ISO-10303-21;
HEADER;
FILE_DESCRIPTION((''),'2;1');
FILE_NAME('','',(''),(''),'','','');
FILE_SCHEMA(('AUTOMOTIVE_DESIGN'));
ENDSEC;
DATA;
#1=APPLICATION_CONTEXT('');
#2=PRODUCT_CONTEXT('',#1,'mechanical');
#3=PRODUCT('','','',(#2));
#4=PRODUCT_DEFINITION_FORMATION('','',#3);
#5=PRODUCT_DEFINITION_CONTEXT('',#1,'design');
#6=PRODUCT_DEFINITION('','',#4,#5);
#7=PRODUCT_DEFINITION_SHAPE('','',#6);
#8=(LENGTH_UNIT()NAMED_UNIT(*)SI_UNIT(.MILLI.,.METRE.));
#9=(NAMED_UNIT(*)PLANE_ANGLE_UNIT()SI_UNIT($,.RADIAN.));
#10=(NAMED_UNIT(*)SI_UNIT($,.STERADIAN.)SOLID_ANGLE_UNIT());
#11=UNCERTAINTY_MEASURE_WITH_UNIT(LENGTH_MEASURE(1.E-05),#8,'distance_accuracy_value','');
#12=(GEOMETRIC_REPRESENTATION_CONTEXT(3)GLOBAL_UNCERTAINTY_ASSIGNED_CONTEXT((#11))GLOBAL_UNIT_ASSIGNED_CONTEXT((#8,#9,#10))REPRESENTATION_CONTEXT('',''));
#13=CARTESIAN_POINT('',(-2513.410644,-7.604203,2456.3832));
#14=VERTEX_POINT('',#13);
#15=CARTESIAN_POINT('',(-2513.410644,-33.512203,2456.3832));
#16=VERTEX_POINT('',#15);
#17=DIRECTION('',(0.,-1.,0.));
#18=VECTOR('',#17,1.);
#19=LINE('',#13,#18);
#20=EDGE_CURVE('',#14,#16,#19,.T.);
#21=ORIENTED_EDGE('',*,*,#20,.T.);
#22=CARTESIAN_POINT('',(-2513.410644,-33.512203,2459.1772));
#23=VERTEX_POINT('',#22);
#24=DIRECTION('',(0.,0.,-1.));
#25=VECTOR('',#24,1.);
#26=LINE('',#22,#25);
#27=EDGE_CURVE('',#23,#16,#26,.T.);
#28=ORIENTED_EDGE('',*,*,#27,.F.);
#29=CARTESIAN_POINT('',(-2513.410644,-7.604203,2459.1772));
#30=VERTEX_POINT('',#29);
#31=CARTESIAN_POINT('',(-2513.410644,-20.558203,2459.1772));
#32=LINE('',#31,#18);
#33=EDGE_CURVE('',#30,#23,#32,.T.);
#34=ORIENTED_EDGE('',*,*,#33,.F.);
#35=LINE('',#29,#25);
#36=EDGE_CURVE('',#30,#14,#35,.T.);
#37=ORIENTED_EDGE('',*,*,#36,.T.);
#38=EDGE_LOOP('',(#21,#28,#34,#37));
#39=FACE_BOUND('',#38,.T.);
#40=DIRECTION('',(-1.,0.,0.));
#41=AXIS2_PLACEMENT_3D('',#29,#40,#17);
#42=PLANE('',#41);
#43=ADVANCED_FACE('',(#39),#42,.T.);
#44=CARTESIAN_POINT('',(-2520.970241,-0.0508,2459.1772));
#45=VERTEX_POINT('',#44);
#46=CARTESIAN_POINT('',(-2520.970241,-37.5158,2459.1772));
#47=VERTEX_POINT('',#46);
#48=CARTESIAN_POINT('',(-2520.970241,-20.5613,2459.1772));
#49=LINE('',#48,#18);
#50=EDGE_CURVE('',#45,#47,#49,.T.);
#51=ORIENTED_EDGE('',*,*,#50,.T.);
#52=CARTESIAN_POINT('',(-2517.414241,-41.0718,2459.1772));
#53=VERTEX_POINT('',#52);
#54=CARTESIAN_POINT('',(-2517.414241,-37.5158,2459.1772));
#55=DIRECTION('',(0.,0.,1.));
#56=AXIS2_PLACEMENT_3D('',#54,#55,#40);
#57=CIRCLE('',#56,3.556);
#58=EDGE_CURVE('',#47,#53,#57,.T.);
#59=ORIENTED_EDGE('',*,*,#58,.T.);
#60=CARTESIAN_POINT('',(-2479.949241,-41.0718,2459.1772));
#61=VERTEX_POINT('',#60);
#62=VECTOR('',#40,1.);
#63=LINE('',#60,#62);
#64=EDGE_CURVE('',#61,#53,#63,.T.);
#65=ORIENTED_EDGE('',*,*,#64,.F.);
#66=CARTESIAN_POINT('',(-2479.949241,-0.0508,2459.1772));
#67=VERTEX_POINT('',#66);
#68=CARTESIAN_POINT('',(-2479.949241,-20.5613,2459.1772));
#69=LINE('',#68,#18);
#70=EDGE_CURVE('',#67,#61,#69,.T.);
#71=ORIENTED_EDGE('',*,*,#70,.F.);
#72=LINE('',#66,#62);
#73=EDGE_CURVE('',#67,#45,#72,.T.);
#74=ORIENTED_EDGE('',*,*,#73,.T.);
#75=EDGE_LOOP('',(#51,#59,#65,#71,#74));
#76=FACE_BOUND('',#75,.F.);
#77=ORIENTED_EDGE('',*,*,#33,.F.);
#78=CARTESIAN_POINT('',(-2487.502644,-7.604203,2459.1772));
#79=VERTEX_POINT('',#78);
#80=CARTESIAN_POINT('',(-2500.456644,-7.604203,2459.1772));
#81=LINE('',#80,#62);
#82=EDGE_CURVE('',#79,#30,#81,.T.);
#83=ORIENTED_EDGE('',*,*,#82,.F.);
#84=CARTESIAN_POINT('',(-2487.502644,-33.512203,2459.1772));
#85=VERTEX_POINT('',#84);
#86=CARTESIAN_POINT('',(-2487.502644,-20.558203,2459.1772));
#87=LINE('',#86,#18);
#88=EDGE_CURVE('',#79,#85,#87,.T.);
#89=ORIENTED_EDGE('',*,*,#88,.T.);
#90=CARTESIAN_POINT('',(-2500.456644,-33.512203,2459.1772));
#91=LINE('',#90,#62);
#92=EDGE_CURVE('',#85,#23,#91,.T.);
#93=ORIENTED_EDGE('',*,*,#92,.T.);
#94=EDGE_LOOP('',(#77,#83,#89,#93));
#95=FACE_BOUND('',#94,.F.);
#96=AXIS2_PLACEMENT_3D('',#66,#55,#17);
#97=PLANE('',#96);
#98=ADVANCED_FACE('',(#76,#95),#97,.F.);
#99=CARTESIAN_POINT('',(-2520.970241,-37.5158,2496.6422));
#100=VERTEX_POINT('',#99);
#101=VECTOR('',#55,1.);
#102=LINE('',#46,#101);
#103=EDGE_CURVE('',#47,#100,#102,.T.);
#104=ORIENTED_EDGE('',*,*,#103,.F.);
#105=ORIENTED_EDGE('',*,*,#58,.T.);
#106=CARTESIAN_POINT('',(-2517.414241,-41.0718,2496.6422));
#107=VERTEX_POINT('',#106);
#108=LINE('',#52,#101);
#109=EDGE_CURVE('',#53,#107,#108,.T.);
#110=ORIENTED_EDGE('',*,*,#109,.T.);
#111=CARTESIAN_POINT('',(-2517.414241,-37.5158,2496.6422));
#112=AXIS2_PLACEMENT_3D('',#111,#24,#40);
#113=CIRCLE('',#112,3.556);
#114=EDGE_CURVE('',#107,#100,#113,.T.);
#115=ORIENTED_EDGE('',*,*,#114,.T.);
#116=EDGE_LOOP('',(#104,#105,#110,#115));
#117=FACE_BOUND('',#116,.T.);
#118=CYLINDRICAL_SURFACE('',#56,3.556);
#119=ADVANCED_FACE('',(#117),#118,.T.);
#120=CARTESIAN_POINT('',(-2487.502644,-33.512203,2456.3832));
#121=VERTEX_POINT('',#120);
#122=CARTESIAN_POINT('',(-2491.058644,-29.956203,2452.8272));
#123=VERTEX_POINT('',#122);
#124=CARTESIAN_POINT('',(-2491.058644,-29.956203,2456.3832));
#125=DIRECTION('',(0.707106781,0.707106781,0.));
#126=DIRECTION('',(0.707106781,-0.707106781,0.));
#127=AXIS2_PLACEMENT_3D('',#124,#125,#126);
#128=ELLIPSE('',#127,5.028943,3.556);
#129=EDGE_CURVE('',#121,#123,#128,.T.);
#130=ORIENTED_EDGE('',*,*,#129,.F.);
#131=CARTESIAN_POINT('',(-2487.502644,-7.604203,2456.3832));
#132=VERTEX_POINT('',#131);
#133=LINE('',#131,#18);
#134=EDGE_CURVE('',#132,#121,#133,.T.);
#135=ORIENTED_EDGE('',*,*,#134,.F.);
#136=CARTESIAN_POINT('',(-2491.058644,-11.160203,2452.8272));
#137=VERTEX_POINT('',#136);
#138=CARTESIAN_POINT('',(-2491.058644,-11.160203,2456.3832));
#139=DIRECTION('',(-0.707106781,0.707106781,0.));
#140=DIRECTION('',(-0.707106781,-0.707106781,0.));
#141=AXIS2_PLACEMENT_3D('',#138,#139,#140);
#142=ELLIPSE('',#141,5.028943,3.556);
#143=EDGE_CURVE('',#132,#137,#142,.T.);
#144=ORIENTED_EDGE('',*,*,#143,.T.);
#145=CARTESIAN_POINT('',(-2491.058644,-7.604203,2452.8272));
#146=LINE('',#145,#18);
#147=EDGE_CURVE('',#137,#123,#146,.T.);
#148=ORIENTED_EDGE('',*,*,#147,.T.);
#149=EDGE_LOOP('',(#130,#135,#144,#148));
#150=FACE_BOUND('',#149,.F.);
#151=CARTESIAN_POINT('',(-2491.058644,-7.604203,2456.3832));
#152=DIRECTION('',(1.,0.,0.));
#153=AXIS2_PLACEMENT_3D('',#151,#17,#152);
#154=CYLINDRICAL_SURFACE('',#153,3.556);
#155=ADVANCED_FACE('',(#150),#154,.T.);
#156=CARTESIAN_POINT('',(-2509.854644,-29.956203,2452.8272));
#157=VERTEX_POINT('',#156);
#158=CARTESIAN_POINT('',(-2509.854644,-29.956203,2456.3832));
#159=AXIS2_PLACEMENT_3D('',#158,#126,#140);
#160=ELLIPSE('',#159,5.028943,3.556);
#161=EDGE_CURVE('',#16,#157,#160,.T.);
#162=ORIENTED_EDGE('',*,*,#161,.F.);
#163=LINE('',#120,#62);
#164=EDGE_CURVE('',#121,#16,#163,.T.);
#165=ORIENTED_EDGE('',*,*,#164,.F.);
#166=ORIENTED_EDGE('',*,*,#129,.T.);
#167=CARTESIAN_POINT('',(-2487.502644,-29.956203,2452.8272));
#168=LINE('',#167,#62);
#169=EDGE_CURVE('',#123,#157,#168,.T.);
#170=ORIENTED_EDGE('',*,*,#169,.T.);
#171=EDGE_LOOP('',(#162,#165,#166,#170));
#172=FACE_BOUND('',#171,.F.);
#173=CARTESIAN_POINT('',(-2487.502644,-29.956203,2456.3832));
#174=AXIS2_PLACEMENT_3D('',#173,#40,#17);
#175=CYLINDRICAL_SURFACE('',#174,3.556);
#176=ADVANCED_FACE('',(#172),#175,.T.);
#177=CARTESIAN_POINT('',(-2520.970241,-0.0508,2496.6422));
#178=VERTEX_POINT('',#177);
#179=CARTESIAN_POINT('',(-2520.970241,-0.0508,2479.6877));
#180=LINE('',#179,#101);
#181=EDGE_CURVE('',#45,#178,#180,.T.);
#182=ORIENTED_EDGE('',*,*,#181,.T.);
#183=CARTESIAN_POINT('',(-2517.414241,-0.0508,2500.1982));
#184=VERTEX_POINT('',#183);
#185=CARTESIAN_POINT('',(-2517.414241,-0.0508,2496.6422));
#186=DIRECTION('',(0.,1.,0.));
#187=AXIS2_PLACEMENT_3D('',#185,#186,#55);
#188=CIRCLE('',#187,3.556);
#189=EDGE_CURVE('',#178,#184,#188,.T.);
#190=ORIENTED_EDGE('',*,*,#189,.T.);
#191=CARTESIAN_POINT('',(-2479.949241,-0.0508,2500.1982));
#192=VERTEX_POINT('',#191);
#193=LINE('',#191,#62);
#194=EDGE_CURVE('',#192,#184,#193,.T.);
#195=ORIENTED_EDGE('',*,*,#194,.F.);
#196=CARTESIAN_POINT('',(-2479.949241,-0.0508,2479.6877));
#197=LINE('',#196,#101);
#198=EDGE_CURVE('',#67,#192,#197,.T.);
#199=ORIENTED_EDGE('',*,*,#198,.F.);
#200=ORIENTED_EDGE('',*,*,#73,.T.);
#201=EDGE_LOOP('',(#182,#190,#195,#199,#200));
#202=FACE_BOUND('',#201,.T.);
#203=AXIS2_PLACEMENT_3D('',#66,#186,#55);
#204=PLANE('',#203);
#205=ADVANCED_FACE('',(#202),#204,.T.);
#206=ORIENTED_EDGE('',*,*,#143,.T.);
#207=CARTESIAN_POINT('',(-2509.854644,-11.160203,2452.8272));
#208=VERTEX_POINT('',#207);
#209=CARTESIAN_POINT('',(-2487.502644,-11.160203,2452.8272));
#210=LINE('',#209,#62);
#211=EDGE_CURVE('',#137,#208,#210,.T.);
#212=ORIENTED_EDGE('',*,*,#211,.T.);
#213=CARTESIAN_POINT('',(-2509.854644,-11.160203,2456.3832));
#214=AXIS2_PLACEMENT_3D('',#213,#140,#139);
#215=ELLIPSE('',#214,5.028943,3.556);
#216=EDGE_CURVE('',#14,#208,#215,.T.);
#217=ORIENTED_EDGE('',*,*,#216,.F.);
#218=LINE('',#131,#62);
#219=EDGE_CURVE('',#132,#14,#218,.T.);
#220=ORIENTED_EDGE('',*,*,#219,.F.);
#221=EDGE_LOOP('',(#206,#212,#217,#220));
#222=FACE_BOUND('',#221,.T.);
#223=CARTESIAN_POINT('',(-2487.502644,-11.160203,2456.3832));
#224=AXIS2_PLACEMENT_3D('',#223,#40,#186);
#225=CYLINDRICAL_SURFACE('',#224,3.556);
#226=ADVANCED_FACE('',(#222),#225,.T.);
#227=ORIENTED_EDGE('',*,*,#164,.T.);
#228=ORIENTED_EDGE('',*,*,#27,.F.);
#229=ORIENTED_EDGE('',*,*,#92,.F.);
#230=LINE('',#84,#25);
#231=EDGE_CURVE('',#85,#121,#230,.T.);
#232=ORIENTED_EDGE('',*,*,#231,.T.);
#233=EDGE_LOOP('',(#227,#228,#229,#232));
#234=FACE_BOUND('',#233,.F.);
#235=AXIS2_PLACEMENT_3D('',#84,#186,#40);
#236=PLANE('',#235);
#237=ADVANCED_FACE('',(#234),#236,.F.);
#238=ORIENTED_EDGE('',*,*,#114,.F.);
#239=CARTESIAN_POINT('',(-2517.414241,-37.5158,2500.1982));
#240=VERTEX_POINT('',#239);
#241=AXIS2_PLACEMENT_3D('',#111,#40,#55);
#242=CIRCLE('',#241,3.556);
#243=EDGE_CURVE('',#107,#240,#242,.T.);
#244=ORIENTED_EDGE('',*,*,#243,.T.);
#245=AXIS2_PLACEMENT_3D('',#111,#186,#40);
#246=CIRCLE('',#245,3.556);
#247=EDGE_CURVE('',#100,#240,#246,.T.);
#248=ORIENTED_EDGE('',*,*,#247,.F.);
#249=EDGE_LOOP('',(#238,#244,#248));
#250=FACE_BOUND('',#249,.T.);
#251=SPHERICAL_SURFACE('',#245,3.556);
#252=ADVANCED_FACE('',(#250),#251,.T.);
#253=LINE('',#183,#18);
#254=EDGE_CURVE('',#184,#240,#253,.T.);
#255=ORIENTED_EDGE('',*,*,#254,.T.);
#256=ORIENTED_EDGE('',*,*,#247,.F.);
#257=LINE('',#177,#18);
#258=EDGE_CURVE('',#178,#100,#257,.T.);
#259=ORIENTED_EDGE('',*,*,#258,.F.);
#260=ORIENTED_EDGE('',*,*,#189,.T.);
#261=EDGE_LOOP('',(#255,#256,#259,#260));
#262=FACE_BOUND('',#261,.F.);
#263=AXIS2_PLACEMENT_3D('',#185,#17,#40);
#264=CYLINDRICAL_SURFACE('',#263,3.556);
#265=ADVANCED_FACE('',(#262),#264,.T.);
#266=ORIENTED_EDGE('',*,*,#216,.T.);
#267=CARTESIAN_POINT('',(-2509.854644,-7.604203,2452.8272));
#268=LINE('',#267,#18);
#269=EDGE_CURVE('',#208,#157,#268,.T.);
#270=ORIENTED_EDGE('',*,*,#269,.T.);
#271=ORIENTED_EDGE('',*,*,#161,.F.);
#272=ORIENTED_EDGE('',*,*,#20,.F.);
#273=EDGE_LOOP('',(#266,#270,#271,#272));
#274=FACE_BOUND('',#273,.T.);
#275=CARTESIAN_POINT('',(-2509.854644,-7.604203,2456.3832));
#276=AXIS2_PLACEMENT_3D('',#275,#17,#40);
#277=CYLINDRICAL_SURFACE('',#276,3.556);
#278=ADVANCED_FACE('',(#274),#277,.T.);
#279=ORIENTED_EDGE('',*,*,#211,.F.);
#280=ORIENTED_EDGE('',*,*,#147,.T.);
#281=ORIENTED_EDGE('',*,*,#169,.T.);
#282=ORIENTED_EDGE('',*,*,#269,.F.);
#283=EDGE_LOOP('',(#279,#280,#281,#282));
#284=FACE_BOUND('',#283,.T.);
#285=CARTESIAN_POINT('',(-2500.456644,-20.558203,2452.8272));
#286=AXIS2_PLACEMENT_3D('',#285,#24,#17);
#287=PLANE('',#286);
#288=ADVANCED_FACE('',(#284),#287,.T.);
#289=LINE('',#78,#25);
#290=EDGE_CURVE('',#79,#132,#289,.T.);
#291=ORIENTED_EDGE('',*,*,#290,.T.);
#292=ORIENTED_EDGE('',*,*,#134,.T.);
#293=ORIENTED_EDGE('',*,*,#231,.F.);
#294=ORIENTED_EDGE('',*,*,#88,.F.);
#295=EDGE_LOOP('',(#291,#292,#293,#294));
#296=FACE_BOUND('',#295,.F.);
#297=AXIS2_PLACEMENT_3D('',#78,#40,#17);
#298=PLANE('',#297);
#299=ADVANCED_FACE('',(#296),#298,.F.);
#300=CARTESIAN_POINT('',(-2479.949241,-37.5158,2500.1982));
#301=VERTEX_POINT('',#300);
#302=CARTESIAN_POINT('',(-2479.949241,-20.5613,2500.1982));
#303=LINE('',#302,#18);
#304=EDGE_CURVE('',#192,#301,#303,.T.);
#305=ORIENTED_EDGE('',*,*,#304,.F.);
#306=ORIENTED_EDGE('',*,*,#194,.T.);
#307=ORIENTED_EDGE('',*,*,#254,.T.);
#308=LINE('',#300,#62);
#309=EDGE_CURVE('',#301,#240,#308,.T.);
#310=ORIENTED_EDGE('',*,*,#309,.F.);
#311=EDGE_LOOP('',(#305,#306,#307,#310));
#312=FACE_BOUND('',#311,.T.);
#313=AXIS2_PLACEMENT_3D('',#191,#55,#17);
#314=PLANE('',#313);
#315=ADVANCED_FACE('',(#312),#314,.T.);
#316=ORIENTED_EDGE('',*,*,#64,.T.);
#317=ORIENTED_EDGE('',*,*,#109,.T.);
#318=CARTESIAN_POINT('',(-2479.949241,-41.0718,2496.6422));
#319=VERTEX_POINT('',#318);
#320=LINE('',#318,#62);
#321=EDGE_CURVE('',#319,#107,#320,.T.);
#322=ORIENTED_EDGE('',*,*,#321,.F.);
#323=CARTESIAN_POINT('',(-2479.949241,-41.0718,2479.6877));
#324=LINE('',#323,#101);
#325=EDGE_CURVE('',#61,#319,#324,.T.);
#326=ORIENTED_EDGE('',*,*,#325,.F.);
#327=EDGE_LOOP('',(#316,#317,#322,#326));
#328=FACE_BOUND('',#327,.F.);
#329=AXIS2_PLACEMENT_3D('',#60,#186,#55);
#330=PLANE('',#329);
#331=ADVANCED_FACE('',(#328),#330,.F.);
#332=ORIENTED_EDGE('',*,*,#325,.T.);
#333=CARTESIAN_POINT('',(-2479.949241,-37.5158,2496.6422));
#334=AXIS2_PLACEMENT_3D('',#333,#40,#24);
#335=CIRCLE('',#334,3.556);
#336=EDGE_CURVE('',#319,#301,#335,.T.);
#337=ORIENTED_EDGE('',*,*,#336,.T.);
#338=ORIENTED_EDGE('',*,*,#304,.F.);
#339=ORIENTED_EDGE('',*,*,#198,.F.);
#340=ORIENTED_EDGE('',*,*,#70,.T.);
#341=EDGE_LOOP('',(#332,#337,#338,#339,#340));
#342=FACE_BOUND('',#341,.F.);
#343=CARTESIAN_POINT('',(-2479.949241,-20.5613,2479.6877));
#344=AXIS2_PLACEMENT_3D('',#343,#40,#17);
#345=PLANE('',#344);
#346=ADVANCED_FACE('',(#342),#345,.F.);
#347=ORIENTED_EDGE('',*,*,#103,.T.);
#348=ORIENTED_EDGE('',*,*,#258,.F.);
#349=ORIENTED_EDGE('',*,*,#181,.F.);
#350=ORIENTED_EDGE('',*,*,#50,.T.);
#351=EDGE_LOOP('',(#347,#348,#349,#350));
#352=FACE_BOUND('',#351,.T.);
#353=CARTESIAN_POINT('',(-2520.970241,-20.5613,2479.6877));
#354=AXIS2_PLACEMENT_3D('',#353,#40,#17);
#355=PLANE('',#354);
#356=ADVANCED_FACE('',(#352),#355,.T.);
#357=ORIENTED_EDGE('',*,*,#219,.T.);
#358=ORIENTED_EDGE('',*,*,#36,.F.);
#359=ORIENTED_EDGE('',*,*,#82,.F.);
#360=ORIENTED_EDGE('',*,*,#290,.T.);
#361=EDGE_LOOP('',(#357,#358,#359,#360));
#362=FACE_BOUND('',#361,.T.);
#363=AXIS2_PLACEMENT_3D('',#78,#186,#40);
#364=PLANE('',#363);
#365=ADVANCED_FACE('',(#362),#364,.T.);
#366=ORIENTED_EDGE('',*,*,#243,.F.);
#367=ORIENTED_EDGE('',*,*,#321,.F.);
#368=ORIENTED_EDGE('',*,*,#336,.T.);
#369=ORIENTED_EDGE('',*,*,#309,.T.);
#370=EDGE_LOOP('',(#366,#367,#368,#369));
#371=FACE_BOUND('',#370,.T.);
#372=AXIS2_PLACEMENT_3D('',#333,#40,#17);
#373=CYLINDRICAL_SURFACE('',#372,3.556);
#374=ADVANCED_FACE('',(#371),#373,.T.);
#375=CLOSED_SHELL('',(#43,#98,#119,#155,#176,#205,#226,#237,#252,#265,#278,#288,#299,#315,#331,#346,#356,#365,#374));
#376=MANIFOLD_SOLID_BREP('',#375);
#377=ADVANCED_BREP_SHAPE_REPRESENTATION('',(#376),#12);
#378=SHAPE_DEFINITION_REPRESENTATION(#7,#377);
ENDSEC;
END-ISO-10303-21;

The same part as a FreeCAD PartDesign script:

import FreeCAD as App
import Part
import Sketcher

V = App.Vector
Q = App.Units.Quantity


def edges_at(feature, points):
    """Names of the edges that pass closest to the given points."""
    edges = feature.Shape.Edges
    near = lambda p: min(range(len(edges)), key=lambda i: edges[i].distToShape(Part.Vertex(*p))[0])
    return sorted({f"Edge{near(p) + 1}" for p in points})

doc = App.newDocument("Part")
body = doc.addObject("PartDesign::Body", "Body")

sketch1 = body.newObject("Sketcher::SketchObject", "Sketch")
sketch1.AttachmentSupport = (doc.getObject("XZ_Plane"), [""])
sketch1.MapMode = "FlatFace"
sketch1.addGeometry([
    Part.LineSegment(V(0, 41, 0), V(0, 0, 0)),
    Part.LineSegment(V(0, 0, 0), V(41, 0, 0)),
    Part.LineSegment(V(41, 0, 0), V(41, 41, 0)),
    Part.LineSegment(V(41, 41, 0), V(0, 41, 0)),
], False)
sketch1.addConstraint([
    Sketcher.Constraint("Coincident", 0, 2, 1, 1),
    Sketcher.Constraint("Coincident", 1, 2, 2, 1),
    Sketcher.Constraint("Coincident", 2, 2, 3, 1),
    Sketcher.Constraint("Coincident", 3, 2, 0, 1),
    Sketcher.Constraint("Vertical", 0),
    Sketcher.Constraint("Horizontal", 1),
    Sketcher.Constraint("Vertical", 2),
    Sketcher.Constraint("Horizontal", 3),
    Sketcher.Constraint("Coincident", 0, 2, -1, 1),
    Sketcher.Constraint("Equal", 3, 0),
    Sketcher.Constraint("DistanceX", 1, 1, 1, 2, Q("1.615 in")),
])
pad1 = body.newObject("PartDesign::Pad", "Pad")
pad1.Profile = sketch1
pad1.Length = Q("1.615 in")

sketch2 = body.newObject("Sketcher::SketchObject", "Sketch001")
sketch2.AttachmentSupport = (doc.getObject("XY_Plane"), [""])
sketch2.MapMode = "FlatFace"
sketch2.addGeometry([
    Part.LineSegment(V(8, -33, 0), V(8, -8, 0)),
    Part.LineSegment(V(8, -8, 0), V(33, -8, 0)),
    Part.LineSegment(V(33, -8, 0), V(33, -33, 0)),
    Part.LineSegment(V(33, -33, 0), V(8, -33, 0)),
], False)
sketch2.addConstraint([
    Sketcher.Constraint("Coincident", 0, 2, 1, 1),
    Sketcher.Constraint("Coincident", 1, 2, 2, 1),
    Sketcher.Constraint("Coincident", 2, 2, 3, 1),
    Sketcher.Constraint("Coincident", 3, 2, 0, 1),
    Sketcher.Constraint("Vertical", 0),
    Sketcher.Constraint("Horizontal", 1),
    Sketcher.Constraint("Vertical", 2),
    Sketcher.Constraint("Horizontal", 3),
    Sketcher.Constraint("Equal", 3, 0),
    Sketcher.Constraint("DistanceX", 1, 1, 1, 2, Q("1.02 in")),
    Sketcher.Constraint("DistanceX", -1, 1, 0, 2, 7.553403),
    Sketcher.Constraint("DistanceY", 0, 2, -1, 1, 7.553403),
])
pad2 = body.newObject("PartDesign::Pad", "Pad001")
pad2.Profile = sketch2
pad2.Length = Q("0.25 in")
pad2.Reversed = True
doc.recompute()

fillet = body.newObject("PartDesign::Fillet", "Fillet")
fillet.Base = (pad2, edges_at(pad2, [
    (7.553, -20.507, -6.35),
    (20.507, -33.461, -6.35),
    (20.507, -7.553, -6.35),
    (33.461, -20.507, -6.35),
]))
fillet.Radius = Q("0.14 in")
doc.recompute()

fillet2 = body.newObject("PartDesign::Fillet", "Fillet001")
fillet2.Base = (fillet, edges_at(fillet, [(20.511, -41.021, 41.021), (41.021, -41.021, 20.511), (41.021, -20.511, 41.021)]))
fillet2.Radius = Q("0.14 in")
body2 = doc.addObject("PartDesign::Body", "Body001")
doc.recompute()

body.Placement = App.Placement(V(-2479.949241, -0.0508, 2459.1772), App.Rotation(V(0, 0, -1), 90))
boolean = body2.newObject("PartDesign::Boolean", "Boolean")
boolean.Type = "Fuse"
boolean.addObjects([body])

doc.recompute()
